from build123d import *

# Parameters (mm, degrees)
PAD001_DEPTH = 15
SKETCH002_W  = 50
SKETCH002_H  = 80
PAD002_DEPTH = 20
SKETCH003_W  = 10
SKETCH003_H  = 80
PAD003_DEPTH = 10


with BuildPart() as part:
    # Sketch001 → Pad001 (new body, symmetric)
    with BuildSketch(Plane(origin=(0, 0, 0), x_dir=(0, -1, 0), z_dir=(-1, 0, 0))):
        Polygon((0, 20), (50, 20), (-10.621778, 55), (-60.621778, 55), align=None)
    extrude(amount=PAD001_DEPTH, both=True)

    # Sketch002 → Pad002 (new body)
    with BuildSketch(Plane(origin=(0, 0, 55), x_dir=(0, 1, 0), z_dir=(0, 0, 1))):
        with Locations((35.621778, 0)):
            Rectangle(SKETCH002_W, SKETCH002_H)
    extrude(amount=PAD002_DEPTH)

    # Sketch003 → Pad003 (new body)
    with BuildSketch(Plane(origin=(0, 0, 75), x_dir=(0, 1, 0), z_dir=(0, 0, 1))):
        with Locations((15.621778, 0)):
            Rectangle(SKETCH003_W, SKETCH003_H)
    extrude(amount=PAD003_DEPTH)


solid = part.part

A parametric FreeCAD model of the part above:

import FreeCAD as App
import Part
import Sketcher
from FreeCAD import Vector
Q = App.Units.Quantity


def add_polygon(sketch, points):
    """Adds a closed chain of lines whose ends are joined by coincident constraints."""
    first, n = sketch.GeometryCount, len(points)
    for a, b in zip(points, points[1:] + points[:1]):
        sketch.addGeometry(Part.LineSegment(App.Vector(*a, 0), App.Vector(*b, 0)), False)
    for i in range(n):
        sketch.addConstraint(Sketcher.Constraint("Coincident", first + i, 2, first + (i + 1) % n, 1))

doc = App.newDocument("Part")
body = doc.addObject("PartDesign::Body", "Body")

# Sketch on YZ plane
sketch1 = body.newObject("Sketcher::SketchObject", "Sketch")
sketch1.AttachmentSupport = (doc.getObject("YZ_Plane"), [""])
sketch1.MapMode = "FlatFace"
add_polygon(sketch1, [(0, 20), (-50, 20), (11, 55), (61, 55)])  # lines 0-3
sketch1.addConstraint(Sketcher.Constraint("Horizontal", 0))
sketch1.addConstraint(Sketcher.Constraint("Horizontal", 2))
sketch1.addConstraint(Sketcher.Constraint("PointOnObject", 3, 2, -2))
sketch1.addConstraint(Sketcher.Constraint("Parallel", 1, 3))
sketch1.addConstraint(Sketcher.Constraint("DistanceX", 0, 2, 0, 1, 50.0))
sketch1.addConstraint(Sketcher.Constraint("Angle", 1, Q("30 deg")))
sketch1.addConstraint(Sketcher.Constraint("Distance", 1, 70.0))
sketch1.addConstraint(Sketcher.Constraint("DistanceY", -1, 1, 0, 2, 20.0))
pad1 = body.newObject("PartDesign::Pad", "Pad")
pad1.Profile = sketch1
pad1.Length = 30
pad1.Midplane = True

# Sketch on XY plane
sketch2 = body.newObject("Sketcher::SketchObject", "Sketch001")
sketch2.AttachmentSupport = (doc.getObject("XY_Plane"), [""])
sketch2.MapMode = "FlatFace"
sketch2.AttachmentOffset = App.Placement(Vector(0, 0, 55), App.Rotation())
add_polygon(sketch2, [(-40, 11), (40, 11), (40, 61), (-40, 61)])  # lines 0-3
sketch2.addConstraint(Sketcher.Constraint("Horizontal", 0))
sketch2.addConstraint(Sketcher.Constraint("Vertical", 1))
sketch2.addConstraint(Sketcher.Constraint("Horizontal", 2))
sketch2.addConstraint(Sketcher.Constraint("Vertical", 3))
sketch2.addConstraint(Sketcher.Constraint("DistanceX", 0, 1, 0, 2, 80.0))
sketch2.addConstraint(Sketcher.Constraint("DistanceY", 1, 1, 1, 2, 50.0))
sketch2.addConstraint(Sketcher.Constraint("DistanceX", -1, 1, 0, 2, 40.0))
sketch2.addConstraint(Sketcher.Constraint("DistanceY", -1, 1, 0, 2, 10.621778))
pad2 = body.newObject("PartDesign::Pad", "Pad001")
pad2.Profile = sketch2
pad2.Length = 20

# Sketch on XY plane
sketch3 = body.newObject("Sketcher::SketchObject", "Sketch002")
sketch3.AttachmentSupport = (doc.getObject("XY_Plane"), [""])
sketch3.MapMode = "FlatFace"
sketch3.AttachmentOffset = App.Placement(Vector(0, 0, 75), App.Rotation())
add_polygon(sketch3, [(-40, 11), (40, 11), (40, 21), (-40, 21)])  # lines 0-3
sketch3.addConstraint(Sketcher.Constraint("Horizontal", 0))
sketch3.addConstraint(Sketcher.Constraint("Vertical", 1))
sketch3.addConstraint(Sketcher.Constraint("Horizontal", 2))
sketch3.addConstraint(Sketcher.Constraint("Vertical", 3))
sketch3.addConstraint(Sketcher.Constraint("DistanceX", 0, 1, 0, 2, 80.0))
sketch3.addConstraint(Sketcher.Constraint("DistanceY", 1, 1, 1, 2, 10.0))
sketch3.addConstraint(Sketcher.Constraint("DistanceX", -1, 1, 0, 2, 40.0))
sketch3.addConstraint(Sketcher.Constraint("DistanceY", -1, 1, 0, 2, 10.621778))
pad3 = body.newObject("PartDesign::Pad", "Pad002")
pad3.Profile = sketch3
pad3.Length = 10

doc.recompute()
